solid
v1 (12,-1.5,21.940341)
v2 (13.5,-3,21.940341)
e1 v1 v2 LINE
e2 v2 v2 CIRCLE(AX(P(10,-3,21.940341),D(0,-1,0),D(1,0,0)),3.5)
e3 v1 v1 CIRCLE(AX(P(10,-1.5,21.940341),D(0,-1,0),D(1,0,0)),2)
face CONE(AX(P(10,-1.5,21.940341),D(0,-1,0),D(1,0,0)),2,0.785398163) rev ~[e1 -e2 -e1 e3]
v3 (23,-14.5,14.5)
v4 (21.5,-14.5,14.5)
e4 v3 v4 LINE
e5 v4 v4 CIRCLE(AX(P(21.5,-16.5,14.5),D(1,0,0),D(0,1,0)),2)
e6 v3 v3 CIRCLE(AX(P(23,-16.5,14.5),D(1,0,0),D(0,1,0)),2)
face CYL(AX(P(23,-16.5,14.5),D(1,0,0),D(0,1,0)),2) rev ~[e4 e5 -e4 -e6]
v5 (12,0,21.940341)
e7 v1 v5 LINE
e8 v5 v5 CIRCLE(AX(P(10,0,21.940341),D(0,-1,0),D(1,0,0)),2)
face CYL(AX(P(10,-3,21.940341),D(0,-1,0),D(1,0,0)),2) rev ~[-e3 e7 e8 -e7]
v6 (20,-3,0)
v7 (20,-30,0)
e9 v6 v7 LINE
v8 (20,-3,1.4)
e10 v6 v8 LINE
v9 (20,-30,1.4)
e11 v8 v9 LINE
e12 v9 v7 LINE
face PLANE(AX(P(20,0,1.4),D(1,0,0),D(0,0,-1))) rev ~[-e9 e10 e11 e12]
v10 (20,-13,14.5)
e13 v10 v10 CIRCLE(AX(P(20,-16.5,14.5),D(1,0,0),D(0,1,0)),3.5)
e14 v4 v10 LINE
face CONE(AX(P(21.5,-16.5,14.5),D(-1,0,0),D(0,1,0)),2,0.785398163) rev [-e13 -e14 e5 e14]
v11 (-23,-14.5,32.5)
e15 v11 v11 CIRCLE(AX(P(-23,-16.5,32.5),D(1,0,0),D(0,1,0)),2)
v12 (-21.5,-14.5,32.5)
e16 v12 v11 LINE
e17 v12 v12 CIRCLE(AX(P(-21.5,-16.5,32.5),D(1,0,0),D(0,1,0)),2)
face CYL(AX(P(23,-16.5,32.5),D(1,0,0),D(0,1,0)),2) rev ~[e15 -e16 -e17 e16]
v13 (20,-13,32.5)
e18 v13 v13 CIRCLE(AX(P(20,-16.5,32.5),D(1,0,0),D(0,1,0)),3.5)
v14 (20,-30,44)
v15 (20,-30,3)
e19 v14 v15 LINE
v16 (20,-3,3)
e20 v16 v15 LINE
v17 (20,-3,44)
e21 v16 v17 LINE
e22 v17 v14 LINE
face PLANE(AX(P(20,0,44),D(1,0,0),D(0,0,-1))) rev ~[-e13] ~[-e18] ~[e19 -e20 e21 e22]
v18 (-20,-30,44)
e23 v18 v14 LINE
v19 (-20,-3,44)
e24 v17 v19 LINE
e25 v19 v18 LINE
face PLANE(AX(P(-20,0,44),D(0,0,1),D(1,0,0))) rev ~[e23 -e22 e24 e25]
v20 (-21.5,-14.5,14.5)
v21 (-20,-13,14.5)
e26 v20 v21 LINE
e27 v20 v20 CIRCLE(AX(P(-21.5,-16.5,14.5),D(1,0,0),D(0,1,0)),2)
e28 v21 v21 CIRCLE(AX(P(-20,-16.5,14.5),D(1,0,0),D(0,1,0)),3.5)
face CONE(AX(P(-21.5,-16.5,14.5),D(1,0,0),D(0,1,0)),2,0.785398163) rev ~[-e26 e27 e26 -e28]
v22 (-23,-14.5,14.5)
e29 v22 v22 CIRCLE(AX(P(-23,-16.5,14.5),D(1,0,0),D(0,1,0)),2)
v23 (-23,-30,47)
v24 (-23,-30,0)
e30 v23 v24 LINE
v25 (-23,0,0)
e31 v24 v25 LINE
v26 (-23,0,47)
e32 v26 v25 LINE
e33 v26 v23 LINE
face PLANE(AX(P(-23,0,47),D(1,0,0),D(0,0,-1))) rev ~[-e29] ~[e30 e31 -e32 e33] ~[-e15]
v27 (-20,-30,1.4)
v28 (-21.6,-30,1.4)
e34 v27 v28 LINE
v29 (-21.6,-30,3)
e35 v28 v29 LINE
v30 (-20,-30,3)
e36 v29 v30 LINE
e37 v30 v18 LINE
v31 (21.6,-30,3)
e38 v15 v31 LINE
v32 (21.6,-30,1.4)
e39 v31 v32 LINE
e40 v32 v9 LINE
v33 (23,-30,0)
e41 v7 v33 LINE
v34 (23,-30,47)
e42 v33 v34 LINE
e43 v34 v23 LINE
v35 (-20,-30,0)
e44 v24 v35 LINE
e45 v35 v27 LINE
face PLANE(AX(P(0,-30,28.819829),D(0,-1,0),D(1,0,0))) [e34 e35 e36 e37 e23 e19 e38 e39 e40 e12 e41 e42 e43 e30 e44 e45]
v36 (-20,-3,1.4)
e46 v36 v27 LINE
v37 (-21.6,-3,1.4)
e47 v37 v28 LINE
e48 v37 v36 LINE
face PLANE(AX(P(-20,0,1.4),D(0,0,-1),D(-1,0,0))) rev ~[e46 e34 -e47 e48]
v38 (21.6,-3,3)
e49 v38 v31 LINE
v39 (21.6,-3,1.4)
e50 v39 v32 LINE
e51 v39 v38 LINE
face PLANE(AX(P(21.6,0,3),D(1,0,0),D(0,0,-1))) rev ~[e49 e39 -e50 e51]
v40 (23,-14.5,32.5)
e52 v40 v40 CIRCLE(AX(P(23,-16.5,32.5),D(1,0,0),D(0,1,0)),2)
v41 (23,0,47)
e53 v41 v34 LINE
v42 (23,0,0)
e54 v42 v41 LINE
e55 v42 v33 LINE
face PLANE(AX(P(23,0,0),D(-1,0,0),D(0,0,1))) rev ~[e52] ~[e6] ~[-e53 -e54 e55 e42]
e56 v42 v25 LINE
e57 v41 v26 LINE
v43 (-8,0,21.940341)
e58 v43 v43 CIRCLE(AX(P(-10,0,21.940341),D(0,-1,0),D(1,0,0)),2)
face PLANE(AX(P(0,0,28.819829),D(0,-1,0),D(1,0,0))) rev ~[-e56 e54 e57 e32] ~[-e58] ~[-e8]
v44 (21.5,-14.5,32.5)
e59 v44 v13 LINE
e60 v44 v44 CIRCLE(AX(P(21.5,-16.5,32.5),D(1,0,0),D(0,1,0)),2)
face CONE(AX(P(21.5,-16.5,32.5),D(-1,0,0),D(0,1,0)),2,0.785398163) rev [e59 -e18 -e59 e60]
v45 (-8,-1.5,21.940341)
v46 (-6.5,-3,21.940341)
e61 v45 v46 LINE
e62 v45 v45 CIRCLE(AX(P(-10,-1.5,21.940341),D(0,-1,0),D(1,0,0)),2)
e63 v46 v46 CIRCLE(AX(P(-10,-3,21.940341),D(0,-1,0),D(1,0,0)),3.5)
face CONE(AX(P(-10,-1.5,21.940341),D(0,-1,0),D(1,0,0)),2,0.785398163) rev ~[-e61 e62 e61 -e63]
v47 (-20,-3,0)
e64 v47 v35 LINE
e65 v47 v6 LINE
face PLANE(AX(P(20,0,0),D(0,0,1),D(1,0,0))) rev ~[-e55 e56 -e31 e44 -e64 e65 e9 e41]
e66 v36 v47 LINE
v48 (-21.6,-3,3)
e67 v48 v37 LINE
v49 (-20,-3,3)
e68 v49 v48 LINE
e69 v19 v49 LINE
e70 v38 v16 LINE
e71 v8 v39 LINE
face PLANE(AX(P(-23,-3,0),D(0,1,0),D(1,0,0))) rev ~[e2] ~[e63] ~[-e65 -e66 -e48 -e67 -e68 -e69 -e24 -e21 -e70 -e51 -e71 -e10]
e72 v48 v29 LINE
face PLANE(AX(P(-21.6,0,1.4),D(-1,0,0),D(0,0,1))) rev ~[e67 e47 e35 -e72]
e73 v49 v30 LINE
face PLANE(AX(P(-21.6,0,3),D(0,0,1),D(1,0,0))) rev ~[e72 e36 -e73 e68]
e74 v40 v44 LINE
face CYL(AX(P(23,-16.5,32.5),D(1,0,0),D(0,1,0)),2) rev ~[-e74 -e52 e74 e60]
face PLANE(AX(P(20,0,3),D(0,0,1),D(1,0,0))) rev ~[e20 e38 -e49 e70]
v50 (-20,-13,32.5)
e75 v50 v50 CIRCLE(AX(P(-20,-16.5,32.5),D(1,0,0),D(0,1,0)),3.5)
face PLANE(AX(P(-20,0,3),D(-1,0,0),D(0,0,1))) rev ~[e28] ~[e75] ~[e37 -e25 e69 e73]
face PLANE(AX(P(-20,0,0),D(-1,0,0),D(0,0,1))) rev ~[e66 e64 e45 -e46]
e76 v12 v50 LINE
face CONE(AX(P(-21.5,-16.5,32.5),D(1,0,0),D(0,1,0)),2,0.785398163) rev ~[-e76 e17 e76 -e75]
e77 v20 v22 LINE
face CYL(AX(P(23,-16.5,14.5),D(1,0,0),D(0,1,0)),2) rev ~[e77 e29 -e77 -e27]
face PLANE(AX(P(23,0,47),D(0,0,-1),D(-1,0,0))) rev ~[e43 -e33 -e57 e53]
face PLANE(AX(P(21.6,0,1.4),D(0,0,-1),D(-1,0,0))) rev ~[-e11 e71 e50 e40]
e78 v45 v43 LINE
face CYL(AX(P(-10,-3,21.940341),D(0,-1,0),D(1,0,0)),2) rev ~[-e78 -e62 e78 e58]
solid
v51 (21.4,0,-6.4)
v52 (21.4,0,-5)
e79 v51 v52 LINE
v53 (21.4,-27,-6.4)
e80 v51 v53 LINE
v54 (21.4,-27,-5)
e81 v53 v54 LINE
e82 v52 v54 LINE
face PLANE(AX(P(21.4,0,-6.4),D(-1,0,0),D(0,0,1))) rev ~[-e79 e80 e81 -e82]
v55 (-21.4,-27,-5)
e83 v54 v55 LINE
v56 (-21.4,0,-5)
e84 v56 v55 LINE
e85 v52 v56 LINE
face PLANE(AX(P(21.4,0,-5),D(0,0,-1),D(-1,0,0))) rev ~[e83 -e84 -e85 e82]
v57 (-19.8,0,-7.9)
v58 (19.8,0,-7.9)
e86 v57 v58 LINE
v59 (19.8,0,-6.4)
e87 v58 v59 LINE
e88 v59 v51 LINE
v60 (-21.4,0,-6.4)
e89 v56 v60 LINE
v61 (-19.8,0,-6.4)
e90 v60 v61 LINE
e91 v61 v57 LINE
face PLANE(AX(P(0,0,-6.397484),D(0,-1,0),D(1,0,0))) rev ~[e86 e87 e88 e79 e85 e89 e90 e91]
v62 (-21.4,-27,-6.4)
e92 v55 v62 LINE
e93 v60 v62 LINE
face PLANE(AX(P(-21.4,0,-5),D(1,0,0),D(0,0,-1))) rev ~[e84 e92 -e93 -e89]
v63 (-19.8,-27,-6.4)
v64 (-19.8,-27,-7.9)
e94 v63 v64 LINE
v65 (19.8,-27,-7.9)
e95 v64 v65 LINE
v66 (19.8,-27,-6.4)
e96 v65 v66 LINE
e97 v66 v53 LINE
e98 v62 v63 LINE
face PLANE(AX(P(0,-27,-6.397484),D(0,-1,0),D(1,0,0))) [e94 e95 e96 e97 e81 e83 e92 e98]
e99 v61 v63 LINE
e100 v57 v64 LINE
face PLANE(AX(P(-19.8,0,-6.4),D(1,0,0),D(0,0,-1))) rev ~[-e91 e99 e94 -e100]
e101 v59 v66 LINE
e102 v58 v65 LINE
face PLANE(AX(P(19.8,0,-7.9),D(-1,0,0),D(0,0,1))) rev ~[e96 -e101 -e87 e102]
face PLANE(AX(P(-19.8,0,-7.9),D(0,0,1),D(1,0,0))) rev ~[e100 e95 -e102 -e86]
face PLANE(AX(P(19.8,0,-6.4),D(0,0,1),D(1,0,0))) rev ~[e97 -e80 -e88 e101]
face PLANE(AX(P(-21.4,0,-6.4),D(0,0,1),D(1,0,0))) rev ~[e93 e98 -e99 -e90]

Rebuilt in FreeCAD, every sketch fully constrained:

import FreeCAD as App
import Part
import Sketcher
from FreeCAD import Vector


def edges_at(feature, points):
    """Names of the edges that pass closest to the given points."""
    edges = feature.Shape.Edges
    near = lambda p: min(range(len(edges)), key=lambda i: edges[i].distToShape(Part.Vertex(*p))[0])
    return sorted({f"Edge{near(p) + 1}" for p in points})


def add_polygon(sketch, points):
    """Adds a closed chain of lines whose ends are joined by coincident constraints."""
    first, n = sketch.GeometryCount, len(points)
    for a, b in zip(points, points[1:] + points[:1]):
        sketch.addGeometry(Part.LineSegment(App.Vector(*a, 0), App.Vector(*b, 0)), False)
    for i in range(n):
        sketch.addConstraint(Sketcher.Constraint("Coincident", first + i, 2, first + (i + 1) % n, 1))

doc = App.newDocument("Part")
body = doc.addObject("PartDesign::Body", "Body")

sketch1 = body.newObject("Sketcher::SketchObject", "Sketch")
sketch1.AttachmentSupport = (doc.getObject("XZ_Plane"), [""])
sketch1.MapMode = "FlatFace"
add_polygon(sketch1, [(-20, 44), (20, 44), (20, 3), (21.6, 3), (21.6, 1.4), (20, 1.4), (20, 0), (23, 0), (23, 47), (-23, 47), (-23, 0), (-20, 0), (-20, 1.4), (-21.6, 1.4), (-21.6, 3), (-20, 3)])
sketch1.addConstraint([
    Sketcher.Constraint("Horizontal", 0),
    Sketcher.Constraint("Vertical", 1),
    Sketcher.Constraint("Horizontal", 2),
    Sketcher.Constraint("Vertical", 3),
    Sketcher.Constraint("Horizontal", 4),
    Sketcher.Constraint("Vertical", 5),
    Sketcher.Constraint("Horizontal", 6),
    Sketcher.Constraint("Vertical", 7),
    Sketcher.Constraint("Horizontal", 8),
    Sketcher.Constraint("Vertical", 9),
    Sketcher.Constraint("Horizontal", 10),
    Sketcher.Constraint("Vertical", 11),
    Sketcher.Constraint("Horizontal", 12),
    Sketcher.Constraint("Vertical", 13),
    Sketcher.Constraint("Horizontal", 14),
    Sketcher.Constraint("Vertical", 15),
    Sketcher.Constraint("Symmetric", 6, 2, 9, 2, -1, 1),
    Sketcher.Constraint("Symmetric", 5, 2, 10, 2, -2),
    Sketcher.Constraint("Symmetric", 3, 2, 12, 2, -2),
    Sketcher.Constraint("Symmetric", 1, 2, 14, 2, -2),
    Sketcher.Constraint("Vertical", 1, 2, 4, 2),
    Sketcher.Constraint("Equal", 14, 3),
    Sketcher.Constraint("DistanceX", 0, 1, 0, 2, 40.0),
    Sketcher.Constraint("DistanceX", 6, 1, 6, 2, 3.0),
    Sketcher.Constraint("DistanceY", 1, 2, 1, 1, 41.0),
    Sketcher.Constraint("DistanceY", 7, 1, 7, 2, 47.0),
    Sketcher.Constraint("DistanceX", 2, 1, 2, 2, 1.6),
    Sketcher.Constraint("DistanceY", 5, 2, 5, 1, 1.4),
])
pad1 = body.newObject("PartDesign::Pad", "Pad")
pad1.Profile = sketch1
pad1.Length = 30

sketch2 = body.newObject("Sketcher::SketchObject", "Sketch001")
sketch2.AttachmentSupport = (doc.getObject("XY_Plane"), [""])
sketch2.MapMode = "FlatFace"
add_polygon(sketch2, [(-23, 0), (-23, -3), (23, -3), (23, 0)])
sketch2.addConstraint([
    Sketcher.Constraint("Vertical", 0),
    Sketcher.Constraint("Horizontal", 1),
    Sketcher.Constraint("Vertical", 2),
    Sketcher.Constraint("Horizontal", 3),
    Sketcher.Constraint("Symmetric", 2, 2, 3, 2, -1, 1),
    Sketcher.Constraint("DistanceX", 1, 1, 1, 2, 46.0),
    Sketcher.Constraint("DistanceY", 0, 2, 0, 1, 3.0),
])
pad2 = body.newObject("PartDesign::Pad", "Pad001")
pad2.Profile = sketch2
pad2.Length = 47

sketch3 = body.newObject("Sketcher::SketchObject", "Sketch002")
sketch3.AttachmentSupport = (doc.getObject("XZ_Plane"), [""])
sketch3.MapMode = "FlatFace"
sketch3.AttachmentOffset = App.Placement(Vector(0, 0, 3), App.Rotation())
sketch3.addGeometry([
    Part.Circle(Vector(-10, 21.9, 0), Vector(0, 0, 1), 2),
    Part.Circle(Vector(10, 21.9, 0), Vector(0, 0, 1), 2),
], False)
sketch3.addConstraint([
    Sketcher.Constraint("Equal", 0, 1),
    Sketcher.Constraint("Symmetric", 0, 3, 1, 3, -2),
    Sketcher.Constraint("Diameter", 0, 4.0),
    Sketcher.Constraint("DistanceX", 0, 3, -1, 1, 10.0),
    Sketcher.Constraint("DistanceY", -1, 1, 0, 3, 21.940341),
])
pocket1 = body.newObject("PartDesign::Pocket", "Pocket")
pocket1.Profile = sketch3
pocket1.Type = "ThroughAll"

sketch4 = body.newObject("Sketcher::SketchObject", "Sketch003")
sketch4.AttachmentSupport = (doc.getObject("YZ_Plane"), [""])
sketch4.MapMode = "FlatFace"
sketch4.AttachmentOffset = App.Placement(Vector(0, 0, 23), App.Rotation())
sketch4.addGeometry([
    Part.Circle(Vector(-16.5, 32.5, 0), Vector(0, 0, 1), 2),
    Part.Circle(Vector(-16.5, 14.5, 0), Vector(0, 0, 1), 2),
], False)
sketch4.addConstraint([
    Sketcher.Constraint("Equal", 0, 1),
    Sketcher.Constraint("Vertical", 0, 3, 1, 3),
    Sketcher.Constraint("Diameter", 0, 4.0),
    Sketcher.Constraint("DistanceY", 1, 3, 0, 3, 18.0),
    Sketcher.Constraint("DistanceX", 0, 3, -1, 1, 16.5),
    Sketcher.Constraint("DistanceY", -1, 1, 0, 3, 32.5),
])
pocket2 = body.newObject("PartDesign::Pocket", "Pocket001")
pocket2.Profile = sketch4
pocket2.Length = 50
doc.recompute()

chamfer = body.newObject("PartDesign::Chamfer", "Chamfer")
chamfer.Base = (pocket2, edges_at(pocket2, [
    (20, -18.5, 32.5),
    (20, -18.5, 14.5),
    (-20, -18.5, 32.5),
    (-20, -18.5, 14.5),
    (-12, -3, 21.94),
    (8, -3, 21.94),
]))
chamfer.Size = 1.5
body2 = doc.addObject("PartDesign::Body", "Body001")

sketch5 = body2.newObject("Sketcher::SketchObject", "Sketch004")
sketch5.AttachmentSupport = (doc.getObject("XZ_Plane001"), [""])
sketch5.MapMode = "FlatFace"
add_polygon(sketch5, [(21.4, -5), (-21.4, -5), (-21.4, -6.4), (-19.8, -6.4), (-19.8, -7.9), (19.8, -7.9), (19.8, -6.4), (21.4, -6.4)])
sketch5.addConstraint([
    Sketcher.Constraint("Horizontal", 0),
    Sketcher.Constraint("Vertical", 1),
    Sketcher.Constraint("Horizontal", 2),
    Sketcher.Constraint("Vertical", 3),
    Sketcher.Constraint("Horizontal", 4),
    Sketcher.Constraint("Vertical", 5),
    Sketcher.Constraint("Horizontal", 6),
    Sketcher.Constraint("Vertical", 7),
    Sketcher.Constraint("Symmetric", 2, 2, 5, 2, -2),
    Sketcher.Constraint("Equal", 2, 6),
    Sketcher.Constraint("DistanceX", 0, 2, 0, 1, 42.8),
    Sketcher.Constraint("DistanceX", 2, 1, 2, 2, 1.6),
    Sketcher.Constraint("DistanceY", 1, 2, 1, 1, 1.4),
    Sketcher.Constraint("DistanceY", 3, 2, 3, 1, 1.5),
    Sketcher.Constraint("DistanceY", 0, 2, -1, 1, 5.0),
])
pad3 = body2.newObject("PartDesign::Pad", "Pad002")
pad3.Profile = sketch5
pad3.Length = 27

doc.recompute()
